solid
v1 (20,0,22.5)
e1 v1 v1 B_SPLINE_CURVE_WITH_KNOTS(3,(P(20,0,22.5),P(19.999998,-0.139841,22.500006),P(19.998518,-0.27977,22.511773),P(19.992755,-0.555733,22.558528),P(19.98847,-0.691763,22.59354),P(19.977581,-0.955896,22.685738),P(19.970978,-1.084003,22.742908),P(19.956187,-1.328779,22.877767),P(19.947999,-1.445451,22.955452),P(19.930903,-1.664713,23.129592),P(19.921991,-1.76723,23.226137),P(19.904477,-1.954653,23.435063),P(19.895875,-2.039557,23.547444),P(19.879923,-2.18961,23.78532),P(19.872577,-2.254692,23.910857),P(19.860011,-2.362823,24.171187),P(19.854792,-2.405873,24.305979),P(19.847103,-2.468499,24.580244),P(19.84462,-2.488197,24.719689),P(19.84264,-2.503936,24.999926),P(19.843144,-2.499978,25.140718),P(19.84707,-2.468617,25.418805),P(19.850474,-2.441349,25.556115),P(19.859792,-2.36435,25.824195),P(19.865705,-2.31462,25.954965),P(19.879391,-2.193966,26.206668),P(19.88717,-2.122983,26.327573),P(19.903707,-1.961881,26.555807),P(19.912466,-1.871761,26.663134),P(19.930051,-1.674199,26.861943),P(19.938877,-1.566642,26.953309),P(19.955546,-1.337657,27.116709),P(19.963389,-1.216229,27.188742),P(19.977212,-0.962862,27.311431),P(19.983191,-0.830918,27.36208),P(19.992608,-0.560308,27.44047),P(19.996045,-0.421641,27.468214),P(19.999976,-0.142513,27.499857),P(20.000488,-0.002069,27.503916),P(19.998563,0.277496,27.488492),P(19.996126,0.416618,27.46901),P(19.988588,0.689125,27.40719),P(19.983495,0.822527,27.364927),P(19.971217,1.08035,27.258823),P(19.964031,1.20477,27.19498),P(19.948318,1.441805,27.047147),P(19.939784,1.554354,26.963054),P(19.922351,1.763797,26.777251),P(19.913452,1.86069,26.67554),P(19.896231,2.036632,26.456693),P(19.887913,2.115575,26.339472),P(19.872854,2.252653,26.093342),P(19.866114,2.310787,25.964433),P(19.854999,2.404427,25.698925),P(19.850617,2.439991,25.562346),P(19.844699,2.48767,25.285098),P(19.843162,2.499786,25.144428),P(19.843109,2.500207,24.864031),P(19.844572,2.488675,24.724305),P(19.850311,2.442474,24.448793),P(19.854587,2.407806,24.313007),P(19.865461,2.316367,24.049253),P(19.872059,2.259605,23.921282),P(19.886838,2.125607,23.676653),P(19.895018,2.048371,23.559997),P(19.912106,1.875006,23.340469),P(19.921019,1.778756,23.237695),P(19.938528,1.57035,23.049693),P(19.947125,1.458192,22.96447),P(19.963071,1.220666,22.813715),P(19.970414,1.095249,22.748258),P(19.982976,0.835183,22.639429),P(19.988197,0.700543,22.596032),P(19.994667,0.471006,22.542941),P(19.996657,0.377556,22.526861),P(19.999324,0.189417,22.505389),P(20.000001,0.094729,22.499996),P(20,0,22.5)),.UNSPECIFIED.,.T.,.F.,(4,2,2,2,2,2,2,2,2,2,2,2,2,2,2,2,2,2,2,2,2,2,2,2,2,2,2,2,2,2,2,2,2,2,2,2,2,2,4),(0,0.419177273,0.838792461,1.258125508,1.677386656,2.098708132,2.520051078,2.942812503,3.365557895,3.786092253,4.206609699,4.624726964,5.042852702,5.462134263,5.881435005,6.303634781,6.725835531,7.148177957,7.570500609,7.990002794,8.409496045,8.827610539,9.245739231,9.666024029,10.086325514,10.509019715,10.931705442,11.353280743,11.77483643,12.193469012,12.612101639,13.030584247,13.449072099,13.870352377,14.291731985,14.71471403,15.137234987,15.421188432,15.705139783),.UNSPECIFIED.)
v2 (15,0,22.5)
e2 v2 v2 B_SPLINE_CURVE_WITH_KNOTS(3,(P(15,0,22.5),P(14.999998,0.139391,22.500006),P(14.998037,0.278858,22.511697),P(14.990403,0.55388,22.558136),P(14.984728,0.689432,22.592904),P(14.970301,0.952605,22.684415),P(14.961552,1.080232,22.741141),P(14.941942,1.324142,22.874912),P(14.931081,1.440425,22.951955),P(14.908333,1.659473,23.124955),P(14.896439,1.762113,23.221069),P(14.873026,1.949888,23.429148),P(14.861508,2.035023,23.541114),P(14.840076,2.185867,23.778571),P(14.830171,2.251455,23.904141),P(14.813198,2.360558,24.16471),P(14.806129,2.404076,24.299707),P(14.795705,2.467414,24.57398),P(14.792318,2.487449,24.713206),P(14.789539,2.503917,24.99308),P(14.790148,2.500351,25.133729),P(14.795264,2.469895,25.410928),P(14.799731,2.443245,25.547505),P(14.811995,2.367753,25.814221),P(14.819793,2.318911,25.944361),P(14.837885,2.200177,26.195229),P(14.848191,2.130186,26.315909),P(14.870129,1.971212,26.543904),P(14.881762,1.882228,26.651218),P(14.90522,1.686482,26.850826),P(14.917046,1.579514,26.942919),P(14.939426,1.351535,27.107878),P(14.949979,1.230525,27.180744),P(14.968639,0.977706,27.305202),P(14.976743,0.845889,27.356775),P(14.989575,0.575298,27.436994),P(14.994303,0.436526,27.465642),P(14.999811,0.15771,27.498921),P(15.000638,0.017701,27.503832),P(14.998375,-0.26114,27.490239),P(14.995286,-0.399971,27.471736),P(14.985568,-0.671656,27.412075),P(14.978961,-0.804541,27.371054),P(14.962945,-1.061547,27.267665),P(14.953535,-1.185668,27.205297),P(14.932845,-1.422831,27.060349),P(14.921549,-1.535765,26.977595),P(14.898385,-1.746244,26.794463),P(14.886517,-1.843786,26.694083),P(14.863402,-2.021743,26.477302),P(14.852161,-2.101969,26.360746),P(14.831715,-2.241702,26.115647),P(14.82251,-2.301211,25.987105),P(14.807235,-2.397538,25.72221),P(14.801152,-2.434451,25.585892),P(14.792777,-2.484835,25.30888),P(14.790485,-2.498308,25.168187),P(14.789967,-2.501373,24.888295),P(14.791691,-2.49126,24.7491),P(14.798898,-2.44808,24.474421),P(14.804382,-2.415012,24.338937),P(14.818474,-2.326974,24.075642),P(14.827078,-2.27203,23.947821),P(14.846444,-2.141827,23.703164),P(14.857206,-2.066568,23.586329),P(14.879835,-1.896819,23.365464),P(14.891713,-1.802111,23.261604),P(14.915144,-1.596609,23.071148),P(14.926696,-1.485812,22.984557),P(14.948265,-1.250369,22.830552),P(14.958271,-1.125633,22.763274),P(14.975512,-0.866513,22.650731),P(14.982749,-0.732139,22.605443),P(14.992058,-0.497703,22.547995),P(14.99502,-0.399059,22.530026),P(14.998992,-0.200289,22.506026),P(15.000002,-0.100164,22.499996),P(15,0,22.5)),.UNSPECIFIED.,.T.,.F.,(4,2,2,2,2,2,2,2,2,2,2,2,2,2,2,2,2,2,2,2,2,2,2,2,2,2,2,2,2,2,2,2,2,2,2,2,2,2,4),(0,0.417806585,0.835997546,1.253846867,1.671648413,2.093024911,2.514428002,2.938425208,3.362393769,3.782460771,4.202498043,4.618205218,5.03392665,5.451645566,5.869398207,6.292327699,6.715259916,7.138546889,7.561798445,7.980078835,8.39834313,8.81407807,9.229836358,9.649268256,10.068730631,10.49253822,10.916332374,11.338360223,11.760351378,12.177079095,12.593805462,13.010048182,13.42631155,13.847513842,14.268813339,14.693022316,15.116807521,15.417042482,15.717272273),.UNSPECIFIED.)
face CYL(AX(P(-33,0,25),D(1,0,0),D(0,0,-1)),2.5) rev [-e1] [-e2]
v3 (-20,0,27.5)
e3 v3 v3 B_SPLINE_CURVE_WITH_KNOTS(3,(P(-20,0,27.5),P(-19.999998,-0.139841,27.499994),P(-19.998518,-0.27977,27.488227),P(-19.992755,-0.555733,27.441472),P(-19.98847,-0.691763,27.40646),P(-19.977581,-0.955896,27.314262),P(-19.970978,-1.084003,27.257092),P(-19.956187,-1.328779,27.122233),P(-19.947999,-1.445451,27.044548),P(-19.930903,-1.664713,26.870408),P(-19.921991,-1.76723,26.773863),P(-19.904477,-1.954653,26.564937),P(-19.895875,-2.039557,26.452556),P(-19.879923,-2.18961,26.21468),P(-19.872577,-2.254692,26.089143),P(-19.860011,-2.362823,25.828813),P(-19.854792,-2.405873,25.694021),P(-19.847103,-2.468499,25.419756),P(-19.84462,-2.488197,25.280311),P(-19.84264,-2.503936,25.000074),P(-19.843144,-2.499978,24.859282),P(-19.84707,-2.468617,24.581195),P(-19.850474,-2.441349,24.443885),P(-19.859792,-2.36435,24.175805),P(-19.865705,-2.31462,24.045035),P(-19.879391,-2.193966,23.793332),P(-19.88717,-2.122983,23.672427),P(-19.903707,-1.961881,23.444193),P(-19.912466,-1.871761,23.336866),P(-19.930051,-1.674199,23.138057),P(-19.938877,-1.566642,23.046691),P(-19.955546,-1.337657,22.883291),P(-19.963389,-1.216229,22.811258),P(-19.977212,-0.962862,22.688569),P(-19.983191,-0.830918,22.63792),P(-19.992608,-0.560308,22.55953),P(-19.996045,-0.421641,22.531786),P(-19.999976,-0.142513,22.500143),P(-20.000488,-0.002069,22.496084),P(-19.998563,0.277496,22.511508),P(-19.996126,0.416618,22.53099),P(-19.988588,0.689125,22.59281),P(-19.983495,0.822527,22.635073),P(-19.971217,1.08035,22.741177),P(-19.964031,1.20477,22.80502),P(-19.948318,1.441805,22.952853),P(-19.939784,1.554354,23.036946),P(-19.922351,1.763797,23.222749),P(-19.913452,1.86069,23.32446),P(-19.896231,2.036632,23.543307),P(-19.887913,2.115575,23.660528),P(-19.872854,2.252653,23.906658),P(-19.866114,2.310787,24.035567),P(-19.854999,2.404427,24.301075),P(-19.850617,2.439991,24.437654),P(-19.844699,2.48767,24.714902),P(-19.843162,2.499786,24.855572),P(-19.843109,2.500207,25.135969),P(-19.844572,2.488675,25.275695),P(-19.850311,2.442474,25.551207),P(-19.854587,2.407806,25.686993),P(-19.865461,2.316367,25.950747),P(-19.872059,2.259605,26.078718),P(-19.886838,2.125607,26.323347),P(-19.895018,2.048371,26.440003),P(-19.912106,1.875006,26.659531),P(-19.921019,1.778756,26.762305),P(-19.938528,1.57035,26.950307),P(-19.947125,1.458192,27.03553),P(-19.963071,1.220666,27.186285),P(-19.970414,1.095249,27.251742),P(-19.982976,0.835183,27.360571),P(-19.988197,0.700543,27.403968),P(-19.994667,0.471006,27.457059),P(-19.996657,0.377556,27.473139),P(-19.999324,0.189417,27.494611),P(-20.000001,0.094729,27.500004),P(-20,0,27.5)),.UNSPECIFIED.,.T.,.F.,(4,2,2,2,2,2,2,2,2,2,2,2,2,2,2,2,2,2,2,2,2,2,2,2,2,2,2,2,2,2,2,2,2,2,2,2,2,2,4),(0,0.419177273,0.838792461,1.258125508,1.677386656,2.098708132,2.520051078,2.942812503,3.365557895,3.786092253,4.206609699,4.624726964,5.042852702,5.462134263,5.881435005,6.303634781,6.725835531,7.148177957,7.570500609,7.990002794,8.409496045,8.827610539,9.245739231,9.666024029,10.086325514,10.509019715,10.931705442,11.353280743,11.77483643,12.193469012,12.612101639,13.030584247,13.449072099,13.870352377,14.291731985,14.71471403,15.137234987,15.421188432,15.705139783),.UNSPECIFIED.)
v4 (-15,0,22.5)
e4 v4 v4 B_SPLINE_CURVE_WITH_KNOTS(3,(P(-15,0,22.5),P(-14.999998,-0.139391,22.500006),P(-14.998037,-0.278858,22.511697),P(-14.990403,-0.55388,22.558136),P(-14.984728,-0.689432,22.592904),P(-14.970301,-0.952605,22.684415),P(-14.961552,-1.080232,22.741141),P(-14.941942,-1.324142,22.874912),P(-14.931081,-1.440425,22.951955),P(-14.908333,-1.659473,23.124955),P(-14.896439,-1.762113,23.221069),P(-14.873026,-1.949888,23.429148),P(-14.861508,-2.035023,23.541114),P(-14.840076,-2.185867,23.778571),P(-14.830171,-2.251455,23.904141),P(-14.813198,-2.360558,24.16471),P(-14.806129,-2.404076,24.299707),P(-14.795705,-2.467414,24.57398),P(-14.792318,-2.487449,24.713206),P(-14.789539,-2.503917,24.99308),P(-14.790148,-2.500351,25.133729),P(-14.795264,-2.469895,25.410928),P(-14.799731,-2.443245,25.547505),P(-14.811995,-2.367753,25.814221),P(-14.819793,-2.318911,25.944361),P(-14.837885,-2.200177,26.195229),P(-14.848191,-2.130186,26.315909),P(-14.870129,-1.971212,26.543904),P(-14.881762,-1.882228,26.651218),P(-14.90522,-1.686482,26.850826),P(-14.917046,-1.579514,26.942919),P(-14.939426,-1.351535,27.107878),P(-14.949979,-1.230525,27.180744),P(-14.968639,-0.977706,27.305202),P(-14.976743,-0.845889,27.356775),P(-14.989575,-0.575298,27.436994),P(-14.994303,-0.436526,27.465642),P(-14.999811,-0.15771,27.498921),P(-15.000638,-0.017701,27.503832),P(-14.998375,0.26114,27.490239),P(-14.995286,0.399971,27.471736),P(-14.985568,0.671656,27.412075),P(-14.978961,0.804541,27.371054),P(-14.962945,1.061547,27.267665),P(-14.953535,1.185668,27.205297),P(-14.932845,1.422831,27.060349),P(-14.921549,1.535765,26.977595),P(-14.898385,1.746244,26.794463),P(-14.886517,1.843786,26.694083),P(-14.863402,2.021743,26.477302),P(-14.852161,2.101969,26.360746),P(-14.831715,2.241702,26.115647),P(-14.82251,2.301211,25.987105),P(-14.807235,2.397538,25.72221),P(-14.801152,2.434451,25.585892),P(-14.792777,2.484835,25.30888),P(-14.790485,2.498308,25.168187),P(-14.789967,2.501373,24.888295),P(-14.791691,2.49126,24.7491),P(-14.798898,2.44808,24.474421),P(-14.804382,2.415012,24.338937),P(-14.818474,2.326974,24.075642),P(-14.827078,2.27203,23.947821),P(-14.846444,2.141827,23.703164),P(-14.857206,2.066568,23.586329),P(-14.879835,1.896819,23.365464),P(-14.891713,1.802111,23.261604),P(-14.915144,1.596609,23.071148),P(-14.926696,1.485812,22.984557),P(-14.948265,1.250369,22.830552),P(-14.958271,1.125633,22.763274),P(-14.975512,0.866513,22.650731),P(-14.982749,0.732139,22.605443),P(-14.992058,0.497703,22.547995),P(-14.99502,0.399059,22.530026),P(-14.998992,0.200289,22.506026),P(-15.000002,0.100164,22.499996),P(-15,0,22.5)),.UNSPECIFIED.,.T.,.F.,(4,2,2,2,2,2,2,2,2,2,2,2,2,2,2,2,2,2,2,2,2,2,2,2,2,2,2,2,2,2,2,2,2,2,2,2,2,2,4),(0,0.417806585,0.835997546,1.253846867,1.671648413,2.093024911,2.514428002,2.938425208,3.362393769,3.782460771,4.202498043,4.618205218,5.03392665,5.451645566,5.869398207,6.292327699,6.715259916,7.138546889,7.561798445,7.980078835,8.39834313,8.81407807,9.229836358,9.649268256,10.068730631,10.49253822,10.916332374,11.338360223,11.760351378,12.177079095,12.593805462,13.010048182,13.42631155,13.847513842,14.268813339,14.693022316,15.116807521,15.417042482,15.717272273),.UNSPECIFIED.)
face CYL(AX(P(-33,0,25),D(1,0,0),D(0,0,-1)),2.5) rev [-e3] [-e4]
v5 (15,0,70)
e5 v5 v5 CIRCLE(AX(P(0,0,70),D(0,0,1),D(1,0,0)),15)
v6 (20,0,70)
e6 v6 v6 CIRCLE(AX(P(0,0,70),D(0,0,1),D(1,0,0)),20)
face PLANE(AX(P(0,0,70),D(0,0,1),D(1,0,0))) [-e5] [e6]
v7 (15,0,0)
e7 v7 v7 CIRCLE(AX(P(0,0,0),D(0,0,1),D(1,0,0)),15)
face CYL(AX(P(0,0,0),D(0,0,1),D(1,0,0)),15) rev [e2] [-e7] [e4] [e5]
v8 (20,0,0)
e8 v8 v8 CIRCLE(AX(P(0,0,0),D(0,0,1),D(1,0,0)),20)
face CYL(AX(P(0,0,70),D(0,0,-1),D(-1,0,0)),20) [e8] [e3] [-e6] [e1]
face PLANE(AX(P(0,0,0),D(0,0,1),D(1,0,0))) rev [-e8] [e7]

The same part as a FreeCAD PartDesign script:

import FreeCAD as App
import Part
import Sketcher

V = App.Vector
Q = App.Units.Quantity

doc = App.newDocument("Part")
params = doc.addObject("Spreadsheet::Sheet", "Params")
for row, (alias, value) in enumerate([
    ("sketch1_diameter", "40 mm"),
    ("pad1_length", "70 mm"),
    ("sketch2_diameter", "30 mm"),
    ("pocket1_length", "70 mm"),
    ("sketch3_diameter", "5 mm"),
    ("pocket2_length", "53 mm"),
], start=1):
    params.set(f"A{row}", alias)
    params.set(f"B{row}", "=" + value)
    params.setAlias(f"B{row}", alias)

body = doc.addObject("PartDesign::Body", "Body")

# Sketch on XY plane
sketch1 = body.newObject("Sketcher::SketchObject", "Sketch")
sketch1.AttachmentSupport = (doc.getObject("XY_Plane"), [""])
sketch1.MapMode = "FlatFace"
sketch1.addGeometry(Part.Circle(V(0, 0, 0), V(0, 0, 1), 20), False)
sketch1.addConstraint(Sketcher.Constraint("Coincident", 0, 3, -1, 1))
sketch1.addConstraint(Sketcher.Constraint("Diameter", 0, Q("40 mm")))
sketch1.setExpression("Constraints[1]", "Params.sketch1_diameter")
pad1 = body.newObject("PartDesign::Pad", "Pad")
pad1.Profile = sketch1
pad1.setExpression("Length", "Params.pad1_length")

# Sketch on XY plane
sketch2 = body.newObject("Sketcher::SketchObject", "Sketch001")
sketch2.AttachmentSupport = (doc.getObject("XY_Plane"), [""])
sketch2.MapMode = "FlatFace"
sketch2.AttachmentOffset = App.Placement(V(0, 0, 70), App.Rotation())
sketch2.addGeometry(Part.Circle(V(0, 0, 0), V(0, 0, 1), 15), False)
sketch2.addConstraint(Sketcher.Constraint("Coincident", 0, 3, -1, 1))
sketch2.addConstraint(Sketcher.Constraint("Diameter", 0, Q("30 mm")))
sketch2.setExpression("Constraints[1]", "Params.sketch2_diameter")
pocket1 = body.newObject("PartDesign::Pocket", "Pocket")
pocket1.Profile = sketch2
pocket1.setExpression("Length", "Params.pocket1_length")

# Sketch on YZ plane
sketch3 = body.newObject("Sketcher::SketchObject", "Sketch002")
sketch3.AttachmentSupport = (doc.getObject("YZ_Plane"), [""])
sketch3.MapMode = "FlatFace"
sketch3.AttachmentOffset = App.Placement(V(0, 0, 20), App.Rotation())
sketch3.addGeometry(Part.Circle(V(0, 25, 0), V(0, 0, 1), 2.5), False)
sketch3.addConstraint(Sketcher.Constraint("PointOnObject", 0, 3, -2))
sketch3.addConstraint(Sketcher.Constraint("Diameter", 0, Q("5 mm")))
sketch3.addConstraint(Sketcher.Constraint("DistanceY", -1, 1, 0, 3, Q("25 mm")))
sketch3.setExpression("Constraints[1]", "Params.sketch3_diameter")
pocket2 = body.newObject("PartDesign::Pocket", "Pocket001")
pocket2.Profile = sketch3
pocket2.setExpression("Length", "Params.pocket2_length")

doc.recompute()
